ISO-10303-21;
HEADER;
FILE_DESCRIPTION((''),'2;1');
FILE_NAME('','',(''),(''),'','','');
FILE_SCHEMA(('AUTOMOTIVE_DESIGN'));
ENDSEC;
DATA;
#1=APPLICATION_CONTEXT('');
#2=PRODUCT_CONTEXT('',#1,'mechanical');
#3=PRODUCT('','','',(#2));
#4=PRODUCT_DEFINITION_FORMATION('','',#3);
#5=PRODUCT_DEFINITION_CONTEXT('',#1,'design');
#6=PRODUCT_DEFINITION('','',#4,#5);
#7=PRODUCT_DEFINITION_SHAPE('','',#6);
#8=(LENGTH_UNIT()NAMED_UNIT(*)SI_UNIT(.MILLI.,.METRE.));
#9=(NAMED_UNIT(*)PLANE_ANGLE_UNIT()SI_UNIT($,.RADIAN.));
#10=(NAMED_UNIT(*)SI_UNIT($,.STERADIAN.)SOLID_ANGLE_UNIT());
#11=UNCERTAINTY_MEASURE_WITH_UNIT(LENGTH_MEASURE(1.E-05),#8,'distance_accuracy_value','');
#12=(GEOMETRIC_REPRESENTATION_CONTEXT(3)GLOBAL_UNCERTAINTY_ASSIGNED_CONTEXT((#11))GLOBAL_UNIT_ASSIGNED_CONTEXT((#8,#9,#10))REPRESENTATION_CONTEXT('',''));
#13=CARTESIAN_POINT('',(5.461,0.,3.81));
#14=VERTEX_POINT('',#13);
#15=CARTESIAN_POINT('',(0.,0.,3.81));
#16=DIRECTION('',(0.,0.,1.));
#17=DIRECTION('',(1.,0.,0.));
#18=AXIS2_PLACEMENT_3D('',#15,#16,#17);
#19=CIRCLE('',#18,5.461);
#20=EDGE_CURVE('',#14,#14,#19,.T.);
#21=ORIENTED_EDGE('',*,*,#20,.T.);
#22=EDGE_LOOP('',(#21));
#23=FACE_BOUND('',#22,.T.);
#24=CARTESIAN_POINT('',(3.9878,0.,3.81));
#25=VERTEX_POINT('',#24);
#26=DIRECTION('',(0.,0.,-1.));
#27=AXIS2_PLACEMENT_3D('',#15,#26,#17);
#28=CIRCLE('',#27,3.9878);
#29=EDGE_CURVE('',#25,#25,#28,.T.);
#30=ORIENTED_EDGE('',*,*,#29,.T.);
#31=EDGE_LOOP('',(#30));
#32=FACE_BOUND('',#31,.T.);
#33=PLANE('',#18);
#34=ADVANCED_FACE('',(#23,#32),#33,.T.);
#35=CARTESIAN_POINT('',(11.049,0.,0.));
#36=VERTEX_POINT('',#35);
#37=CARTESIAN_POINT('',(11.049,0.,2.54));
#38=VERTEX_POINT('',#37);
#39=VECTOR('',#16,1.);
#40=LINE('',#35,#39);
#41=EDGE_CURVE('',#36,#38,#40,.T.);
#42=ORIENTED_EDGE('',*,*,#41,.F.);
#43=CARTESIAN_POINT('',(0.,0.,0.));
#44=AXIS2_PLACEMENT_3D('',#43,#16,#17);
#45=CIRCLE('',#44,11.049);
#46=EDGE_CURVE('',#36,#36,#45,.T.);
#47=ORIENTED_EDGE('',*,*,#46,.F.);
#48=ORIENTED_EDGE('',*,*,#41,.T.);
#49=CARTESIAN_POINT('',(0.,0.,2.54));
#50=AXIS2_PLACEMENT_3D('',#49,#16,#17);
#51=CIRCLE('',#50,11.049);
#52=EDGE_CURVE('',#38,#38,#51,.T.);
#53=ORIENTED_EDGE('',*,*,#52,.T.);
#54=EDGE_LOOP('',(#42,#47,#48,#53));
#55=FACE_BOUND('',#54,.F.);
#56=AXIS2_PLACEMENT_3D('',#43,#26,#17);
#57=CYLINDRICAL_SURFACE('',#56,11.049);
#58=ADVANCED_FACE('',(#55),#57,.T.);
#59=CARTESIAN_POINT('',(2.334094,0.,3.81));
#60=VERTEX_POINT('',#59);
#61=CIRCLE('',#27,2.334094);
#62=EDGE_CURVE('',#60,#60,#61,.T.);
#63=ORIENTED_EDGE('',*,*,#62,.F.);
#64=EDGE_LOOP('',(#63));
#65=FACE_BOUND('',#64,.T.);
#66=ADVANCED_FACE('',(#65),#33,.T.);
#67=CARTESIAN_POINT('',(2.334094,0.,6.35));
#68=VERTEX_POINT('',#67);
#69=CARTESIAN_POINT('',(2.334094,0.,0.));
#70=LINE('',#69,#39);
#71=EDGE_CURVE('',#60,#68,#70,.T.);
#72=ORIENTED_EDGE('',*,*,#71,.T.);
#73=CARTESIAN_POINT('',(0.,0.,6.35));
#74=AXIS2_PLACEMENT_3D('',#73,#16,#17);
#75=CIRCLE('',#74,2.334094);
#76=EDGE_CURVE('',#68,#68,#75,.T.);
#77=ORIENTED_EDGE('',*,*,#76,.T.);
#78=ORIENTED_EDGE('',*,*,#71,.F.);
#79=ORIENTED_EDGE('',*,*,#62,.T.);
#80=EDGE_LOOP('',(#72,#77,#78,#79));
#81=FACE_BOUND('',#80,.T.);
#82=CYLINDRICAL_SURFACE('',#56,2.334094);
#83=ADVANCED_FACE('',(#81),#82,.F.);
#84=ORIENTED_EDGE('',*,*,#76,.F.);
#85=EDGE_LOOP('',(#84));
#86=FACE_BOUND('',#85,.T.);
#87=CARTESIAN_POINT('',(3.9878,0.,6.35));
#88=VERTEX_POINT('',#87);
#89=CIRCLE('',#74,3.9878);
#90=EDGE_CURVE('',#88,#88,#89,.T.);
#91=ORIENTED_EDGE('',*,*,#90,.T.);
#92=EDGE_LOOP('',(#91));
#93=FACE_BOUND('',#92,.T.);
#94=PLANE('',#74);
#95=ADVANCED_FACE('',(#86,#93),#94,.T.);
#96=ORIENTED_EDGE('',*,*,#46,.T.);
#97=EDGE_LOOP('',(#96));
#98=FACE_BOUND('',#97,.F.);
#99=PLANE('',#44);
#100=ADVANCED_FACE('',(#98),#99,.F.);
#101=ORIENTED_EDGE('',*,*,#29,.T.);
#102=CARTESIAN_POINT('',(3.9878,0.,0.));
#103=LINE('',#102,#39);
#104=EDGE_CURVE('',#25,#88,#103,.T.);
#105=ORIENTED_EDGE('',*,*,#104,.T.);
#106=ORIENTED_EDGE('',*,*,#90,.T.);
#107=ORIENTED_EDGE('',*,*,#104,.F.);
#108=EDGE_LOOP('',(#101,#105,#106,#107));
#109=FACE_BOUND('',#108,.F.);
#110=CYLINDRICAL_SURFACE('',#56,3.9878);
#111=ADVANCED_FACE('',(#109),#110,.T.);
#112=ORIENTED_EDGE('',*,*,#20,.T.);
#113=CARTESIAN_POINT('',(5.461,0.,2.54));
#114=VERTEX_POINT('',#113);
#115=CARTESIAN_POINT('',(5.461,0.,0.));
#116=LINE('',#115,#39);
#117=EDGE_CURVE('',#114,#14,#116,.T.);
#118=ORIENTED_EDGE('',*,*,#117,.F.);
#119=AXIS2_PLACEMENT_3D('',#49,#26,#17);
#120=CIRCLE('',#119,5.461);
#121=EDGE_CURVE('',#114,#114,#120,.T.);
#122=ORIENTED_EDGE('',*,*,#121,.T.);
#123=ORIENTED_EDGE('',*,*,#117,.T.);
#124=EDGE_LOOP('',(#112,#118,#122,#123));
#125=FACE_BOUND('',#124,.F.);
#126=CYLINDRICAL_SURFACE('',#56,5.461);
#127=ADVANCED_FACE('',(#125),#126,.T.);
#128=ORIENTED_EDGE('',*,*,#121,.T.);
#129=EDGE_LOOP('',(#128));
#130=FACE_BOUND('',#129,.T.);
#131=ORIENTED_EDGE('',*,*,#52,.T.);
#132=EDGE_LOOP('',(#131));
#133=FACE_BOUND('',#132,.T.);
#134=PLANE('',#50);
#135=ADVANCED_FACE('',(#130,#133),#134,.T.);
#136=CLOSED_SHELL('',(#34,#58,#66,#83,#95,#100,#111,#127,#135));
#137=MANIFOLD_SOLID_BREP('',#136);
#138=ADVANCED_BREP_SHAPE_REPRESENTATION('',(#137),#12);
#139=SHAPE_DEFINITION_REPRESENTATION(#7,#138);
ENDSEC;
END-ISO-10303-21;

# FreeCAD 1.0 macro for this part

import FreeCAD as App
import Part
import Sketcher
from FreeCAD import Vector
Q = App.Units.Quantity

doc = App.newDocument("Part")
params = doc.addObject("Spreadsheet::Sheet", "Params")
for row, (alias, value) in enumerate([
    ("sketch1_diameter", "0.87 in"),
    ("pad1_length", "0.1 in"),
    ("sketch2_diameter", "0.43 in"),
    ("pad2_length", "0.15 in"),
    ("sketch3_diameter", "0.314 in"),
    ("pad3_length", "0.25 in"),
], start=1):
    params.set(f"A{row}", alias)
    params.set(f"B{row}", "=" + value)
    params.setAlias(f"B{row}", alias)

body = doc.addObject("PartDesign::Body", "Body")

# Sketch on XY plane
sketch1 = doc.addObject("Sketcher::SketchObject", "Sketch")
body.addObject(sketch1)
sketch1.AttachmentSupport = (doc.XY_Plane, [""])
sketch1.MapMode = "FlatFace"
sketch1.addGeometry(Part.Circle(Vector(0, 0, 0), Vector(0, 0, 1), 11), False)
sketch1.addConstraint(Sketcher.Constraint("Coincident", 0, 3, -1, 1))
sketch1.addConstraint(Sketcher.Constraint("Diameter", 0, Q("0.87 in")))
sketch1.setExpression("Constraints[1]", "Params.sketch1_diameter")
pad1 = doc.addObject("PartDesign::Pad", "Pad")
body.addObject(pad1)
pad1.Profile = sketch1
pad1.setExpression("Length", "Params.pad1_length")

# Sketch on XY plane
sketch2 = doc.addObject("Sketcher::SketchObject", "Sketch001")
body.addObject(sketch2)
sketch2.AttachmentSupport = (doc.XY_Plane, [""])
sketch2.MapMode = "FlatFace"
sketch2.addGeometry(Part.Circle(Vector(0, 0, 0), Vector(0, 0, 1), 5), False)
sketch2.addConstraint(Sketcher.Constraint("Coincident", 0, 3, -1, 1))
sketch2.addConstraint(Sketcher.Constraint("Diameter", 0, Q("0.43 in")))
sketch2.setExpression("Constraints[1]", "Params.sketch2_diameter")
pad2 = doc.addObject("PartDesign::Pad", "Pad001")
body.addObject(pad2)
pad2.Profile = sketch2
pad2.setExpression("Length", "Params.pad2_length")

# Sketch on XY plane
sketch3 = doc.addObject("Sketcher::SketchObject", "Sketch002")
body.addObject(sketch3)
sketch3.AttachmentSupport = (doc.XY_Plane, [""])
sketch3.MapMode = "FlatFace"
sketch3.addGeometry(Part.Circle(Vector(0, 0, 0), Vector(0, 0, 1), 4), False)
sketch3.addGeometry(Part.Circle(Vector(0, 0, 0), Vector(0, 0, 1), 2.3), False)
sketch3.addConstraint(Sketcher.Constraint("Coincident", 0, 3, -1, 1))
sketch3.addConstraint(Sketcher.Constraint("Coincident", 1, 3, -1, 1))
sketch3.addConstraint(Sketcher.Constraint("Diameter", 0, Q("0.314 in")))
sketch3.addConstraint(Sketcher.Constraint("Diameter", 1, Q("4.668188 mm")))
sketch3.setExpression("Constraints[2]", "Params.sketch3_diameter")
pad3 = doc.addObject("PartDesign::Pad", "Pad002")
body.addObject(pad3)
pad3.Profile = sketch3
pad3.setExpression("Length", "Params.pad3_length")

doc.recompute()
